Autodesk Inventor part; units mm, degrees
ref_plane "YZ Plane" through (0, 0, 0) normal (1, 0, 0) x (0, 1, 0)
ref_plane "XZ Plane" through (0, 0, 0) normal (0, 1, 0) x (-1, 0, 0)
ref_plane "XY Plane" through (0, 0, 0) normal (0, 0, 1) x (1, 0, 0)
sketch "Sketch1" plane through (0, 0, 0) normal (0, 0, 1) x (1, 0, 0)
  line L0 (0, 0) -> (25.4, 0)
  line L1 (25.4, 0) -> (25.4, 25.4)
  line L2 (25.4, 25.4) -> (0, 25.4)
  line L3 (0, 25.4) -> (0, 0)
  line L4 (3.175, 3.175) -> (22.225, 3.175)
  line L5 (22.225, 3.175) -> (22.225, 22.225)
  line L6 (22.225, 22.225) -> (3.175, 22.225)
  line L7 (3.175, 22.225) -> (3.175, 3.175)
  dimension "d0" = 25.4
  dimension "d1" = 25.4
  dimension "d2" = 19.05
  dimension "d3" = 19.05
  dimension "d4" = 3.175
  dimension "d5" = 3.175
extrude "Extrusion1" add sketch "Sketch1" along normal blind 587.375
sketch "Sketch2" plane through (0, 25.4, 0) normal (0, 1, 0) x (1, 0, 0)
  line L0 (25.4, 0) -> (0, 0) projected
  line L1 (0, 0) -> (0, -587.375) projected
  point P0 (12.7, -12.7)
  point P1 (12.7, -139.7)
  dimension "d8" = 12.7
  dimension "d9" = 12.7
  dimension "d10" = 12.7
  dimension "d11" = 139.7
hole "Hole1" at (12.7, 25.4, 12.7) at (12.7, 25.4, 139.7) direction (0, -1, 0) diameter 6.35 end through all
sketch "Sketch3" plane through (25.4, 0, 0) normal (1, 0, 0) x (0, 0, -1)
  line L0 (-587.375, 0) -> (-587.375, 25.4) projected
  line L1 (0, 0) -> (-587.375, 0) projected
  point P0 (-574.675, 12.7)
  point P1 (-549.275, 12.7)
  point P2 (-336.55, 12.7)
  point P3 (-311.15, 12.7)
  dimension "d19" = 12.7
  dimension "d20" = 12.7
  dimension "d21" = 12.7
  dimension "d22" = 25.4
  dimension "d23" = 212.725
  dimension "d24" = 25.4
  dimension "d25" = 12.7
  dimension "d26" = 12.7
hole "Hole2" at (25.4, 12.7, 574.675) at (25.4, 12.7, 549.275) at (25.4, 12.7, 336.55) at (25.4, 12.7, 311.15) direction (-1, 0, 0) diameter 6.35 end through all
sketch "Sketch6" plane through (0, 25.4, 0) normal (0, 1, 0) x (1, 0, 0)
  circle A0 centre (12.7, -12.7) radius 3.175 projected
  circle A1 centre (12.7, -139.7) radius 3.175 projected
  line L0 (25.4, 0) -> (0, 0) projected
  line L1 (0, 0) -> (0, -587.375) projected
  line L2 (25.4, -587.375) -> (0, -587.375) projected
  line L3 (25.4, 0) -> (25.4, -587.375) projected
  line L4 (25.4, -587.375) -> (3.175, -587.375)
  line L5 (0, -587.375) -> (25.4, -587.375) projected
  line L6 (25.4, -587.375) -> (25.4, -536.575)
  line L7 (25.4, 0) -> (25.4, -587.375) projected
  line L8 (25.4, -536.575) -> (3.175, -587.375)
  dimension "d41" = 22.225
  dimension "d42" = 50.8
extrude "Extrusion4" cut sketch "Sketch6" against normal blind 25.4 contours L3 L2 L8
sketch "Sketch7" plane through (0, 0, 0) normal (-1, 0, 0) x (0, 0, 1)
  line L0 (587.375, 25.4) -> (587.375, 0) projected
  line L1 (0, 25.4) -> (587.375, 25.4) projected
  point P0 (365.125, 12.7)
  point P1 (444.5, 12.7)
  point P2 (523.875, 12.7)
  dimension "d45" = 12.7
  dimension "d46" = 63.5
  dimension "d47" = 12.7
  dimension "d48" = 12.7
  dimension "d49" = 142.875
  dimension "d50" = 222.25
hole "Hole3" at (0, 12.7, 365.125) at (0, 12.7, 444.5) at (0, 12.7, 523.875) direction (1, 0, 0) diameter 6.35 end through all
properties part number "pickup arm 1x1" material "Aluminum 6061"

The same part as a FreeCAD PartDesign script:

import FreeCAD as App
import Part
import Sketcher
from FreeCAD import Vector
Q = App.Units.Quantity

doc = App.newDocument("Part")
params = doc.addObject("Spreadsheet::Sheet", "Params")
for row, (alias, value) in enumerate([
    ("sketch1_width", "1 in"),
    ("sketch1_width2", "0.75 in"),
    ("pad1_length", "23.125 in"),
    ("sketch2_diameter", "0.25 in"),
    ("hole_diameter", "0.25 in"),
    ("sketch3_diameter", "0.25 in"),
    ("hole2_diameter", "0.25 in"),
    ("sketch4_height", "2 in"),
    ("sketch4_width", "0.875 in"),
    ("pocket1_length", "1 in"),
    ("sketch5_diameter", "0.25 in"),
    ("hole3_diameter", "0.25 in"),
], start=1):
    params.set(f"A{row}", alias)
    params.set(f"B{row}", "=" + value)
    params.setAlias(f"B{row}", alias)

body = doc.addObject("PartDesign::Body", "Body")

# Sketch on XY plane
sketch1 = body.newObject("Sketcher::SketchObject", "Sketch")
sketch1.AttachmentSupport = (doc.getObject("XY_Plane"), [""])
sketch1.MapMode = "FlatFace"
sketch1.addGeometry(Part.LineSegment(Vector(0, 25.4, 0), Vector(0, 0, 0)), False)
sketch1.addGeometry(Part.LineSegment(Vector(0, 0, 0), Vector(25.4, 0, 0)), False)
sketch1.addGeometry(Part.LineSegment(Vector(25.4, 0, 0), Vector(25.4, 25.4, 0)), False)
sketch1.addGeometry(Part.LineSegment(Vector(25.4, 25.4, 0), Vector(0, 25.4, 0)), False)
sketch1.addGeometry(Part.LineSegment(Vector(22.225, 3.175, 0), Vector(3.175, 3.175, 0)), False)
sketch1.addGeometry(Part.LineSegment(Vector(3.175, 3.175, 0), Vector(3.175, 22.225, 0)), False)
sketch1.addGeometry(Part.LineSegment(Vector(3.175, 22.225, 0), Vector(22.225, 22.225, 0)), False)
sketch1.addGeometry(Part.LineSegment(Vector(22.225, 22.225, 0), Vector(22.225, 3.175, 0)), False)
sketch1.addConstraint(Sketcher.Constraint("Coincident", 0, 2, 1, 1))
sketch1.addConstraint(Sketcher.Constraint("Coincident", 1, 2, 2, 1))
sketch1.addConstraint(Sketcher.Constraint("Coincident", 2, 2, 3, 1))
sketch1.addConstraint(Sketcher.Constraint("Coincident", 3, 2, 0, 1))
sketch1.addConstraint(Sketcher.Constraint("Coincident", 4, 2, 5, 1))
sketch1.addConstraint(Sketcher.Constraint("Coincident", 5, 2, 6, 1))
sketch1.addConstraint(Sketcher.Constraint("Coincident", 6, 2, 7, 1))
sketch1.addConstraint(Sketcher.Constraint("Coincident", 7, 2, 4, 1))
sketch1.addConstraint(Sketcher.Constraint("Vertical", 0))
sketch1.addConstraint(Sketcher.Constraint("Horizontal", 1))
sketch1.addConstraint(Sketcher.Constraint("Vertical", 2))
sketch1.addConstraint(Sketcher.Constraint("Horizontal", 3))
sketch1.addConstraint(Sketcher.Constraint("Horizontal", 4))
sketch1.addConstraint(Sketcher.Constraint("Vertical", 5))
sketch1.addConstraint(Sketcher.Constraint("Horizontal", 6))
sketch1.addConstraint(Sketcher.Constraint("Vertical", 7))
sketch1.addConstraint(Sketcher.Constraint("Coincident", 0, 2, -1, 1))
sketch1.addConstraint(Sketcher.Constraint("Equal", 3, 0))
sketch1.addConstraint(Sketcher.Constraint("Equal", 6, 5))
sketch1.addConstraint(Sketcher.Constraint("DistanceX", 1, 1, 1, 2, Q("1 in")))
sketch1.addConstraint(Sketcher.Constraint("DistanceX", 4, 2, 4, 1, Q("0.75 in")))
sketch1.addConstraint(Sketcher.Constraint("DistanceX", -1, 1, 4, 2, Q("0.125 in")))
sketch1.addConstraint(Sketcher.Constraint("DistanceY", -1, 1, 4, 2, Q("0.125 in")))
sketch1.setExpression("Constraints[19]", "Params.sketch1_width")
sketch1.setExpression("Constraints[20]", "Params.sketch1_width2")
pad1 = body.newObject("PartDesign::Pad", "Pad")
pad1.Profile = sketch1
pad1.setExpression("Length", "Params.pad1_length")

# Sketch on XZ plane
sketch2 = body.newObject("Sketcher::SketchObject", "Sketch001")
sketch2.AttachmentSupport = (doc.getObject("XZ_Plane"), [""])
sketch2.MapMode = "FlatFace"
sketch2.AttachmentOffset = App.Placement(Vector(0, 0, -1 * 25.4), App.Rotation())
sketch2.addGeometry(Part.Circle(Vector(12.7, 12.7, 0), Vector(0, 0, 1), 3.175), False)
sketch2.addGeometry(Part.Circle(Vector(12.7, 139.7, 0), Vector(0, 0, 1), 3.175), False)
sketch2.addConstraint(Sketcher.Constraint("Equal", 0, 1))
sketch2.addConstraint(Sketcher.Constraint("Vertical", 0, 3, 1, 3))
sketch2.addConstraint(Sketcher.Constraint("Diameter", 0, Q("0.25 in")))
sketch2.addConstraint(Sketcher.Constraint("DistanceY", 0, 3, 1, 3, Q("5 in")))
sketch2.addConstraint(Sketcher.Constraint("DistanceX", -1, 1, 0, 3, Q("0.5 in")))
sketch2.addConstraint(Sketcher.Constraint("DistanceY", -1, 1, 0, 3, Q("0.5 in")))
sketch2.setExpression("Constraints[2]", "Params.sketch2_diameter")
doc.recompute()
hole = body.newObject("PartDesign::Hole", "Hole")
hole.Profile = sketch2
hole.ThreadType = "None"
hole.setExpression("Diameter", "Params.hole_diameter")
hole.DepthType = "ThroughAll"
hole.Reversed = True

# Sketch on YZ plane
sketch3 = body.newObject("Sketcher::SketchObject", "Sketch002")
sketch3.AttachmentSupport = (doc.getObject("YZ_Plane"), [""])
sketch3.MapMode = "FlatFace"
sketch3.AttachmentOffset = App.Placement(Vector(0, 0, 1 * 25.4), App.Rotation())
sketch3.addGeometry(Part.Circle(Vector(12.7, 574.675, 0), Vector(0, 0, 1), 3.175), False)
sketch3.addGeometry(Part.Circle(Vector(12.7, 549.275, 0), Vector(0, 0, 1), 3.175), False)
sketch3.addGeometry(Part.Circle(Vector(12.7, 336.55, 0), Vector(0, 0, 1), 3.175), False)
sketch3.addGeometry(Part.Circle(Vector(12.7, 311.15, 0), Vector(0, 0, 1), 3.175), False)
sketch3.addConstraint(Sketcher.Constraint("Equal", 0, 1))
sketch3.addConstraint(Sketcher.Constraint("Equal", 1, 2))
sketch3.addConstraint(Sketcher.Constraint("Equal", 2, 3))
sketch3.addConstraint(Sketcher.Constraint("Vertical", 0, 3, 1, 3))
sketch3.addConstraint(Sketcher.Constraint("Vertical", 1, 3, 2, 3))
sketch3.addConstraint(Sketcher.Constraint("Vertical", 2, 3, 3, 3))
sketch3.addConstraint(Sketcher.Constraint("Diameter", 0, Q("0.25 in")))
sketch3.addConstraint(Sketcher.Constraint("DistanceY", 1, 3, 0, 3, Q("1 in")))
sketch3.addConstraint(Sketcher.Constraint("DistanceY", 3, 3, 2, 3, Q("1 in")))
sketch3.addConstraint(Sketcher.Constraint("DistanceX", -1, 1, 0, 3, Q("0.5 in")))
sketch3.addConstraint(Sketcher.Constraint("DistanceY", -1, 1, 2, 3, Q("13.25 in")))
sketch3.addConstraint(Sketcher.Constraint("DistanceY", -1, 1, 0, 3, Q("22.625 in")))
sketch3.setExpression("Constraints[6]", "Params.sketch3_diameter")
doc.recompute()
hole2 = body.newObject("PartDesign::Hole", "Hole001")
hole2.Profile = sketch3
hole2.ThreadType = "None"
hole2.setExpression("Diameter", "Params.hole2_diameter")
hole2.DepthType = "ThroughAll"

# Sketch on XZ plane
sketch4 = body.newObject("Sketcher::SketchObject", "Sketch003")
sketch4.AttachmentSupport = (doc.getObject("XZ_Plane"), [""])
sketch4.MapMode = "FlatFace"
sketch4.AttachmentOffset = App.Placement(Vector(0, 0, -1 * 25.4), App.Rotation())
sketch4.addGeometry(Part.LineSegment(Vector(25.4, 587.375, 0), Vector(25.4, 536.575, 0)), False)
sketch4.addGeometry(Part.LineSegment(Vector(25.4, 536.575, 0), Vector(3.175, 587.375, 0)), False)
sketch4.addGeometry(Part.LineSegment(Vector(3.175, 587.375, 0), Vector(25.4, 587.375, 0)), False)
sketch4.addConstraint(Sketcher.Constraint("Coincident", 0, 2, 1, 1))
sketch4.addConstraint(Sketcher.Constraint("Coincident", 1, 2, 2, 1))
sketch4.addConstraint(Sketcher.Constraint("Coincident", 2, 2, 0, 1))
sketch4.addConstraint(Sketcher.Constraint("Vertical", 0))
sketch4.addConstraint(Sketcher.Constraint("Horizontal", 2))
sketch4.addConstraint(Sketcher.Constraint("DistanceY", 0, 2, 0, 1, Q("2 in")))
sketch4.addConstraint(Sketcher.Constraint("DistanceX", 2, 1, 2, 2, Q("0.875 in")))
sketch4.addConstraint(Sketcher.Constraint("DistanceX", -1, 1, 0, 2, Q("1 in")))
sketch4.addConstraint(Sketcher.Constraint("DistanceY", -1, 1, 0, 2, Q("21.125 in")))
sketch4.setExpression("Constraints[5]", "Params.sketch4_height")
sketch4.setExpression("Constraints[6]", "Params.sketch4_width")
pocket1 = body.newObject("PartDesign::Pocket", "Pocket")
pocket1.Profile = sketch4
pocket1.setExpression("Length", "Params.pocket1_length")
pocket1.Reversed = True

# Sketch on YZ plane
sketch5 = body.newObject("Sketcher::SketchObject", "Sketch004")
sketch5.AttachmentSupport = (doc.getObject("YZ_Plane"), [""])
sketch5.MapMode = "FlatFace"
sketch5.addGeometry(Part.Circle(Vector(12.7, 365.125, 0), Vector(0, 0, 1), 3.175), False)
sketch5.addGeometry(Part.Circle(Vector(12.7, 444.5, 0), Vector(0, 0, 1), 3.175), False)
sketch5.addGeometry(Part.Circle(Vector(12.7, 523.875, 0), Vector(0, 0, 1), 3.175), False)
sketch5.addConstraint(Sketcher.Constraint("Equal", 0, 1))
sketch5.addConstraint(Sketcher.Constraint("Equal", 1, 2))
sketch5.addConstraint(Sketcher.Constraint("Vertical", 0, 3, 1, 3))
sketch5.addConstraint(Sketcher.Constraint("Vertical", 1, 3, 2, 3))
sketch5.addConstraint(Sketcher.Constraint("Diameter", 0, Q("0.25 in")))
sketch5.addConstraint(Sketcher.Constraint("DistanceX", -1, 1, 0, 3, Q("0.5 in")))
sketch5.addConstraint(Sketcher.Constraint("DistanceY", -1, 1, 1, 3, Q("17.5 in")))
sketch5.addConstraint(Sketcher.Constraint("DistanceY", 0, 3, 2, 3, Q("6.25 in")))
sketch5.addConstraint(Sketcher.Constraint("DistanceY", -1, 1, 0, 3, Q("14.375 in")))
sketch5.setExpression("Constraints[4]", "Params.sketch5_diameter")
doc.recompute()
hole3 = body.newObject("PartDesign::Hole", "Hole002")
hole3.Profile = sketch5
hole3.ThreadType = "None"
hole3.setExpression("Diameter", "Params.hole3_diameter")
hole3.DepthType = "ThroughAll"
hole3.Reversed = True

doc.recompute()
